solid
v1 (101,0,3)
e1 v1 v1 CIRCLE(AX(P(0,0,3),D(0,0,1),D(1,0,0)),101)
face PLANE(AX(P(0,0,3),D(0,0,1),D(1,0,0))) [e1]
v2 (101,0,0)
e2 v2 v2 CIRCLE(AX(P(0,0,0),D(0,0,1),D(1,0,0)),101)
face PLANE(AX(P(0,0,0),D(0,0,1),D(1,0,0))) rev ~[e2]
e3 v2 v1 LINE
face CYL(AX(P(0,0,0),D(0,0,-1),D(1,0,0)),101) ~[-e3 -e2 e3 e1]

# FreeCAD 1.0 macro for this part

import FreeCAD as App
import Part
import Sketcher
Q = App.Units.Quantity

doc = App.newDocument("Part")
body = doc.addObject("PartDesign::Body", "Body")

sketch1 = doc.addObject("Sketcher::SketchObject", "Sketch")
body.addObject(sketch1)
sketch1.AttachmentSupport = (doc.XY_Plane, [""])
sketch1.MapMode = "FlatFace"
sketch1.addGeometry(Part.Circle(App.Vector(0, 0, 0), App.Vector(0, 0, 1), 101), False)
sketch1.addConstraint([
    Sketcher.Constraint("Coincident", 0, 3, -1, 1),
    Sketcher.Constraint("Diameter", 0, Q("202 mm")),
])
pad1 = doc.addObject("PartDesign::Pad", "Pad")
body.addObject(pad1)
pad1.Profile = sketch1
pad1.Length = 3

doc.recompute()
